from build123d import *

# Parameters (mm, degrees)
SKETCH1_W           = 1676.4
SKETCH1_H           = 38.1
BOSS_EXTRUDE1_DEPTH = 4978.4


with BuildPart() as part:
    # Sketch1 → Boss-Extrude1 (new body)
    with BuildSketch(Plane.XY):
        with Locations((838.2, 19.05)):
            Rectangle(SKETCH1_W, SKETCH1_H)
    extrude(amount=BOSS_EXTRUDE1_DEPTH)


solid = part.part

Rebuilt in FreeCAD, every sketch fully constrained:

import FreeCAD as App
import Part
import Sketcher

V = App.Vector
Q = App.Units.Quantity

doc = App.newDocument("Part")
params = doc.addObject("Spreadsheet::Sheet", "Params")
for row, (alias, value) in enumerate([
    ("sketch1_width", "66 in"),
    ("sketch1_height", "1.5 in"),
    ("pad1_length", "196 in"),
], start=1):
    params.set(f"A{row}", alias)
    params.set(f"B{row}", "=" + value)
    params.setAlias(f"B{row}", alias)

body = doc.addObject("PartDesign::Body", "Body")

# Sketch on XY plane
sketch1 = body.newObject("Sketcher::SketchObject", "Sketch")
sketch1.AttachmentSupport = (doc.getObject("XY_Plane"), [""])
sketch1.MapMode = "FlatFace"
sketch1.addGeometry([
    Part.LineSegment(V(0, 38, 0), V(0, 0, 0)),
    Part.LineSegment(V(0, 0, 0), V(1676, 0, 0)),
    Part.LineSegment(V(1676, 0, 0), V(1676, 38, 0)),
    Part.LineSegment(V(1676, 38, 0), V(0, 38, 0)),
], False)
sketch1.addConstraint([
    Sketcher.Constraint("Coincident", 0, 2, 1, 1),
    Sketcher.Constraint("Coincident", 1, 2, 2, 1),
    Sketcher.Constraint("Coincident", 2, 2, 3, 1),
    Sketcher.Constraint("Coincident", 3, 2, 0, 1),
    Sketcher.Constraint("Vertical", 0),
    Sketcher.Constraint("Horizontal", 1),
    Sketcher.Constraint("Vertical", 2),
    Sketcher.Constraint("Horizontal", 3),
    Sketcher.Constraint("Coincident", 0, 2, -1, 1),
    Sketcher.Constraint("DistanceX", 1, 1, 1, 2, Q("66 in")),
    Sketcher.Constraint("DistanceY", 0, 2, 0, 1, Q("1.5 in")),
])
sketch1.setExpression("Constraints[9]", "Params.sketch1_width")
sketch1.setExpression("Constraints[10]", "Params.sketch1_height")
pad1 = body.newObject("PartDesign::Pad", "Pad")
pad1.Profile = sketch1
pad1.setExpression("Length", "Params.pad1_length")

doc.recompute()
